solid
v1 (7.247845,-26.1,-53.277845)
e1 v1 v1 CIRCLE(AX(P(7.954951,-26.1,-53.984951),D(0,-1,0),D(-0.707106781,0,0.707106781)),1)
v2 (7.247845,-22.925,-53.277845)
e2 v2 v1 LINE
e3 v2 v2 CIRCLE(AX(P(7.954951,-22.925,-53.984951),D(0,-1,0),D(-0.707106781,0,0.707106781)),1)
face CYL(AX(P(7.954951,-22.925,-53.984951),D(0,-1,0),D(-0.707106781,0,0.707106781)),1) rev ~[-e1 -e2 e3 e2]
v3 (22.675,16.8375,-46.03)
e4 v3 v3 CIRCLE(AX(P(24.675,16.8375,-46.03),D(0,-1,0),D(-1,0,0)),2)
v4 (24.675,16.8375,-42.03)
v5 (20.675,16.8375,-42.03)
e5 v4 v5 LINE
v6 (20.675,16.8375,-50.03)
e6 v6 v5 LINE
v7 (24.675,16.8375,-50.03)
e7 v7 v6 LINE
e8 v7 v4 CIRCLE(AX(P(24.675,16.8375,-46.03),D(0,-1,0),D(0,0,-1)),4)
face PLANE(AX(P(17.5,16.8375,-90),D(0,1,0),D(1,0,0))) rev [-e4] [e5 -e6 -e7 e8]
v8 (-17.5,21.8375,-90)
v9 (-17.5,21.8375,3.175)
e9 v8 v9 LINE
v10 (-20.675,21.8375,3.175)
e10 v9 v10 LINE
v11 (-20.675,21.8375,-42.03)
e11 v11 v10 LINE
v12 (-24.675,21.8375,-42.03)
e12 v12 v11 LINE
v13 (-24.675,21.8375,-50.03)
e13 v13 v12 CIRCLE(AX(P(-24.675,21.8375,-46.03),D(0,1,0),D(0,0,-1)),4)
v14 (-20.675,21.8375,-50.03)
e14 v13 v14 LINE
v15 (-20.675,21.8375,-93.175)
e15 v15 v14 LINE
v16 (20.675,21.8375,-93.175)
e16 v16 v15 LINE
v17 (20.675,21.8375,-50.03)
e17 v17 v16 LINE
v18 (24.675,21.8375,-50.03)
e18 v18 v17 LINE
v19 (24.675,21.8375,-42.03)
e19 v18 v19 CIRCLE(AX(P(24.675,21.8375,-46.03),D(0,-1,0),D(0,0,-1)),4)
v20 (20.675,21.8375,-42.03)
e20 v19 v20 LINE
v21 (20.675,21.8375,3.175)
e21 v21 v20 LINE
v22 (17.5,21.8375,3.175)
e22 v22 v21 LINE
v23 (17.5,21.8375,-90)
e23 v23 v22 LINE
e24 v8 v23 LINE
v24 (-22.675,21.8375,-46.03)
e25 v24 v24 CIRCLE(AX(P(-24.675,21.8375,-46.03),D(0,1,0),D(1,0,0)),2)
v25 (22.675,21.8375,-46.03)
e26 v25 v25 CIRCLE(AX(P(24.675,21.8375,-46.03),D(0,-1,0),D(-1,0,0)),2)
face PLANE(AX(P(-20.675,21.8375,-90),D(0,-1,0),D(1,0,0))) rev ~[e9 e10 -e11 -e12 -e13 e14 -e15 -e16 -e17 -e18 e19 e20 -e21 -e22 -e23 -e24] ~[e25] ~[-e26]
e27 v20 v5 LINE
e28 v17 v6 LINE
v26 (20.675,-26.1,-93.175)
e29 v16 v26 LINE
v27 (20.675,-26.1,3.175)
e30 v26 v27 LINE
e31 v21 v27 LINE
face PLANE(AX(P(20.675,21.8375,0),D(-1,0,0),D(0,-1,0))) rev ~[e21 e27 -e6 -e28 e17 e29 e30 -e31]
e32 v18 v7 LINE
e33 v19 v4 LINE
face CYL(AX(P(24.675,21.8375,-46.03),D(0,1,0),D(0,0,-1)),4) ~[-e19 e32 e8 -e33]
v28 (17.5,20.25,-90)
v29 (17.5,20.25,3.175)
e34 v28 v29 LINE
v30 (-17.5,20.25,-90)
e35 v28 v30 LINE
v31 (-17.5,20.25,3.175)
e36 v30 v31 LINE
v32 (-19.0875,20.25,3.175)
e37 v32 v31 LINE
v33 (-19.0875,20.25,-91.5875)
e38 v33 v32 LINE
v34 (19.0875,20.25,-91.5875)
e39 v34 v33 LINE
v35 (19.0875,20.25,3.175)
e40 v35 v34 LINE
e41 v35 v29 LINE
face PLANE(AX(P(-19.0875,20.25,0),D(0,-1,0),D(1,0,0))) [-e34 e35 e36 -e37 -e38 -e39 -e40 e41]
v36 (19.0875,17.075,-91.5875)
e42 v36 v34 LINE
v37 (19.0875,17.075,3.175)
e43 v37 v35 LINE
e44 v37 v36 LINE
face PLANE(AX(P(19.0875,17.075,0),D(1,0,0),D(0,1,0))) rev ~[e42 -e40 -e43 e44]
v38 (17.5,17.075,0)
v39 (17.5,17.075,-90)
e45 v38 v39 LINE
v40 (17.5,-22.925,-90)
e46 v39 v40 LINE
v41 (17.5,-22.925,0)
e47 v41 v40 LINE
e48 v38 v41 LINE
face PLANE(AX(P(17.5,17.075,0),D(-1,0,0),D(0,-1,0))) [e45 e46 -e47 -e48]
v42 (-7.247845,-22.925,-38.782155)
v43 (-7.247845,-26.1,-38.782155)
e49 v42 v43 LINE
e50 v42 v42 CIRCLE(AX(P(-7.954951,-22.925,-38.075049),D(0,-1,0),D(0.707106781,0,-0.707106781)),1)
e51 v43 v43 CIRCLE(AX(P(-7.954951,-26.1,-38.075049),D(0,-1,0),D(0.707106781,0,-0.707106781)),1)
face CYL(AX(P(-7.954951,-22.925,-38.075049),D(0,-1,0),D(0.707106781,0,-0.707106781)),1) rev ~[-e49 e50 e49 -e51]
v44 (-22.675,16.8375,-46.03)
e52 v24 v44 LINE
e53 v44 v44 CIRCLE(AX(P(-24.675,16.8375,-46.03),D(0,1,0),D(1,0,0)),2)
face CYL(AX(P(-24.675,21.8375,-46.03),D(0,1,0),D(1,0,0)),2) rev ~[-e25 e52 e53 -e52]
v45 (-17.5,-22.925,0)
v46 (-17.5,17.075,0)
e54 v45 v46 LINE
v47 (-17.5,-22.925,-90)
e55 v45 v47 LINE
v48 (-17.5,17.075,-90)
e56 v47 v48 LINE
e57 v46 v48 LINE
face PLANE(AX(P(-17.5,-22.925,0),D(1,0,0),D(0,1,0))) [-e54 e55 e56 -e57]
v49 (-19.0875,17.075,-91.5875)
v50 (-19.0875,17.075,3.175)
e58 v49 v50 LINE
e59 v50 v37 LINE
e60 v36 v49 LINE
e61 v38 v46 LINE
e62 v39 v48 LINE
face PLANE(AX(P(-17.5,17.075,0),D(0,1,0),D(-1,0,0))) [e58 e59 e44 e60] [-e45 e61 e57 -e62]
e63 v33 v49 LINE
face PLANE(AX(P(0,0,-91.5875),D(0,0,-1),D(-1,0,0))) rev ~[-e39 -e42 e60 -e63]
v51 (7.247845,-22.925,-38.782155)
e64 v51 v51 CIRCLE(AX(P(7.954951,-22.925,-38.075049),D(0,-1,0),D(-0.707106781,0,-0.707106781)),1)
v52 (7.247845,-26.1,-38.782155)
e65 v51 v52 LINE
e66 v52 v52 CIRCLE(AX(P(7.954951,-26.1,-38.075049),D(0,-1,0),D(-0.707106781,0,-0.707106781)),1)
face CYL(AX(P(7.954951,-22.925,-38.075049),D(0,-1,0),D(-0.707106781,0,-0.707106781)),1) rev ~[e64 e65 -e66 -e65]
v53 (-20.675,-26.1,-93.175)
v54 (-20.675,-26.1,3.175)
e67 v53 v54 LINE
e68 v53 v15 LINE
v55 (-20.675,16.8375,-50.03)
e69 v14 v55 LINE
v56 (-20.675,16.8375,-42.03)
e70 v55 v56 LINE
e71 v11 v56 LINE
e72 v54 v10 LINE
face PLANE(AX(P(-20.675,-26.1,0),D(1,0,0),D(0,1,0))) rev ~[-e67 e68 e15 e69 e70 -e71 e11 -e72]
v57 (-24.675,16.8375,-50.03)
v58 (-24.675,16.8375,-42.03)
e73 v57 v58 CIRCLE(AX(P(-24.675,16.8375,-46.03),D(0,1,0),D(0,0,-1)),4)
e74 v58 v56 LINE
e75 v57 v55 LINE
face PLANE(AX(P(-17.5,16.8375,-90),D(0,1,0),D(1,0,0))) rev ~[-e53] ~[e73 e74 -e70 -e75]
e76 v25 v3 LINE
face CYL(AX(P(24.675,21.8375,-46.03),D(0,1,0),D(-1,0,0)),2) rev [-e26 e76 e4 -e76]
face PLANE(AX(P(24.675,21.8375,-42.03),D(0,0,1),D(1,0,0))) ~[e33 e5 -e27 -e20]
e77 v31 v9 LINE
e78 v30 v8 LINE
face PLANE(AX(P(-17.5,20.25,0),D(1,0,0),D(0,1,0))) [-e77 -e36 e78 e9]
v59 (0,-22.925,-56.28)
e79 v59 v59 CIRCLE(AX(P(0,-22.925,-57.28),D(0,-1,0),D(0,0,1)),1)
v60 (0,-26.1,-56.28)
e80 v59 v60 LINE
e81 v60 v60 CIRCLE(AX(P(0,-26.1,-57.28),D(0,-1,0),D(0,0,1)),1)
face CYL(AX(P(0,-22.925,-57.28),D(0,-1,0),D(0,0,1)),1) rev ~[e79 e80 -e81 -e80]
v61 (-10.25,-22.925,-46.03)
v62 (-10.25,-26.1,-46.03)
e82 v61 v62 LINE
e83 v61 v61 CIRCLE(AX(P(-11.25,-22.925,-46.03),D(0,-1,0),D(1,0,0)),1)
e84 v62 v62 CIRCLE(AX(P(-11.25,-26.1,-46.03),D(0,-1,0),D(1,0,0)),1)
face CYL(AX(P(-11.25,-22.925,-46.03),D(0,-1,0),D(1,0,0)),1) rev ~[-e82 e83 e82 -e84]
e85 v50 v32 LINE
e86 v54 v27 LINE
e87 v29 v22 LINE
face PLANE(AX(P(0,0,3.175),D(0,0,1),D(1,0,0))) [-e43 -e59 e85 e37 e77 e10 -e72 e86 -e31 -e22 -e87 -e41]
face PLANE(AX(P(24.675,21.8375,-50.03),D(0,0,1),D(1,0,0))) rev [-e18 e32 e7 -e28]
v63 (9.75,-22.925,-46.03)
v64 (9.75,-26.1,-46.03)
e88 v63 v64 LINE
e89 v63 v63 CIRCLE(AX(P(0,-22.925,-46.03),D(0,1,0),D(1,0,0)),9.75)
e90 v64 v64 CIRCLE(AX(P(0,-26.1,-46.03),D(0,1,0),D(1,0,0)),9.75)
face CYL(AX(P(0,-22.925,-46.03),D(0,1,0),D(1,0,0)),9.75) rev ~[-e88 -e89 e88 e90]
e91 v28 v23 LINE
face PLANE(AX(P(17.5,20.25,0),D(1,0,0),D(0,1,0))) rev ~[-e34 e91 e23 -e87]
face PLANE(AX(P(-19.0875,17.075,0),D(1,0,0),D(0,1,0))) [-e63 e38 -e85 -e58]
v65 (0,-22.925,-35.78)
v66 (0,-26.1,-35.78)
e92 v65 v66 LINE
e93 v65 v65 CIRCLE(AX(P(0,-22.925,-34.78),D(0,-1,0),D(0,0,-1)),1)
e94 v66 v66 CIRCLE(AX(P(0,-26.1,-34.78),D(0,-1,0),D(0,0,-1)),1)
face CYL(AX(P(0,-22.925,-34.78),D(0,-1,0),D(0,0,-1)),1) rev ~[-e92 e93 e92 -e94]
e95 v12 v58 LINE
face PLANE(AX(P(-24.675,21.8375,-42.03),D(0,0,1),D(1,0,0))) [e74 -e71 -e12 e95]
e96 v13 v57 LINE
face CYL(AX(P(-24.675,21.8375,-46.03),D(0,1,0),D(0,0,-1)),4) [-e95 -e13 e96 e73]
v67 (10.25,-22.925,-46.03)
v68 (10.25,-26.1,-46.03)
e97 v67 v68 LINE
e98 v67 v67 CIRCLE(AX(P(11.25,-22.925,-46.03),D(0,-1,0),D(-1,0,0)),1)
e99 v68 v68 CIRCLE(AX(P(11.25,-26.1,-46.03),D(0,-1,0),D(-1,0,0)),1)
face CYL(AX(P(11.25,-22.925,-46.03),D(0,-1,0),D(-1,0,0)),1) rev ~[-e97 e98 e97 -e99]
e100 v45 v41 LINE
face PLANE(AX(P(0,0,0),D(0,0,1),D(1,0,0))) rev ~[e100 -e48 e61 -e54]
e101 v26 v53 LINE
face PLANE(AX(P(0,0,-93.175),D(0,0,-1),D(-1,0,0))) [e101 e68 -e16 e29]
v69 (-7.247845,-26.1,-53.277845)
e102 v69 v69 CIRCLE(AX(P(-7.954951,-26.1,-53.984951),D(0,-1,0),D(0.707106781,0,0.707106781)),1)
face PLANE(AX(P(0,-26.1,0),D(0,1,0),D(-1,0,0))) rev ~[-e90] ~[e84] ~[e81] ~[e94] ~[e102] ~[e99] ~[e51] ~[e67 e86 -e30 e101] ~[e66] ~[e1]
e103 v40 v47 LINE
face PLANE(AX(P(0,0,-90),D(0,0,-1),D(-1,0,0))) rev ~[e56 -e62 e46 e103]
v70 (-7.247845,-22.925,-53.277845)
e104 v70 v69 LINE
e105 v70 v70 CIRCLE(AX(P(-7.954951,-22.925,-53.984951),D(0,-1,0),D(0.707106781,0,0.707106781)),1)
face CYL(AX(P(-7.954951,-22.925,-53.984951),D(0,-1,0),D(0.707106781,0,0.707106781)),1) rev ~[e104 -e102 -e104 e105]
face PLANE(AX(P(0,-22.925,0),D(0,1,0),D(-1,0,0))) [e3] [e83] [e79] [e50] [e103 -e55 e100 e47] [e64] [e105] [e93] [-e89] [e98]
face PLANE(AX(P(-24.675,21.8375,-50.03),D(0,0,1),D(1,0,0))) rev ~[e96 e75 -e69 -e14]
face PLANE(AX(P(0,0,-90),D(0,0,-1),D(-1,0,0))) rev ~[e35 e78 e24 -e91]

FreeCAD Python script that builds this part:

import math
import FreeCAD as App
import Part
import Sketcher
from FreeCAD import Vector
Q = App.Units.Quantity


def add_polygon(sketch, points):
    """Adds a closed chain of lines whose ends are joined by coincident constraints."""
    first, n = sketch.GeometryCount, len(points)
    for a, b in zip(points, points[1:] + points[:1]):
        sketch.addGeometry(Part.LineSegment(App.Vector(*a, 0), App.Vector(*b, 0)), False)
    for i in range(n):
        sketch.addConstraint(Sketcher.Constraint("Coincident", first + i, 2, first + (i + 1) % n, 1))

doc = App.newDocument("Part")
params = doc.addObject("Spreadsheet::Sheet", "Params")
for row, (alias, value) in enumerate([
    ("sketch1_width", "35 mm"),
    ("sketch1_height", "40 mm"),
    ("pad1_length", "90 mm"),
    ("pad2_length", "3.175 mm"),
    ("sketch3_width", "41.35 mm"),
    ("pad3_length", "3.175 mm"),
    ("pocket1_length", "1.5875 mm"),
    ("sketch5_diameter", "19.5 mm"),
    ("sketch6_diameter", "2 mm"),
    ("hole_diameter", "2 mm"),
    ("hole_depth", "8 mm"),
    ("sketch7_diameter", "4 mm"),
    ("sketch7_radius", "4 mm"),
    ("sketch7_width", "4 mm"),
    ("pad4_length", "5 mm"),
], start=1):
    params.set(f"A{row}", alias)
    params.set(f"B{row}", "=" + value)
    params.setAlias(f"B{row}", alias)

body = doc.addObject("PartDesign::Body", "Body")

# Sketch on XY plane
sketch1 = body.newObject("Sketcher::SketchObject", "Sketch")
sketch1.AttachmentSupport = (doc.getObject("XY_Plane"), [""])
sketch1.MapMode = "FlatFace"
add_polygon(sketch1, [(-17.5, -22.925), (-17.5, 17.075), (-19.0875, 17.075), (-19.0875, 20.25), (-17.5, 20.25), (-17.5, 21.8375), (-20.675, 21.8375), (-20.675, -26.1), (20.675, -26.1), (20.675, 21.8375), (17.5, 21.8375), (17.5, 20.25), (19.0875, 20.25), (19.0875, 17.075), (17.5, 17.075), (17.5, -22.925)])  # lines 0-15
sketch1.addConstraint([
    Sketcher.Constraint("Vertical", 0),
    Sketcher.Constraint("Horizontal", 1),
    Sketcher.Constraint("Vertical", 2),
    Sketcher.Constraint("Horizontal", 3),
    Sketcher.Constraint("Vertical", 4),
    Sketcher.Constraint("Horizontal", 5),
    Sketcher.Constraint("Vertical", 6),
    Sketcher.Constraint("Horizontal", 7),
    Sketcher.Constraint("Vertical", 8),
    Sketcher.Constraint("Horizontal", 9),
    Sketcher.Constraint("Vertical", 10),
    Sketcher.Constraint("Horizontal", 11),
    Sketcher.Constraint("Vertical", 12),
    Sketcher.Constraint("Horizontal", 13),
    Sketcher.Constraint("Vertical", 14),
    Sketcher.Constraint("Horizontal", 15),
    Sketcher.Constraint("Symmetric", 5, 2, 8, 2, -2),
    Sketcher.Constraint("Symmetric", 3, 2, 10, 2, -2),
    Sketcher.Constraint("Symmetric", 1, 2, 12, 2, -2),
    Sketcher.Constraint("Vertical", 0, 2, 3, 2),
    Sketcher.Constraint("Vertical", 10, 2, 13, 2),
    Sketcher.Constraint("Equal", 9, 2),
    Sketcher.Constraint("Equal", 13, 4),
    Sketcher.Constraint("DistanceX", 15, 2, 15, 1, Q("35 mm")),
    Sketcher.Constraint("DistanceY", 0, 1, 0, 2, Q("40 mm")),
    Sketcher.Constraint("DistanceX", 5, 2, 5, 1, Q("3.175 mm")),
    Sketcher.Constraint("DistanceX", 1, 2, 1, 1, Q("1.5875 mm")),
    Sketcher.Constraint("DistanceY", 7, 2, 14, 2, Q("3.175 mm")),
    Sketcher.Constraint("DistanceY", 6, 2, -1, 1, Q("26.1 mm")),
])
sketch1.setExpression("Constraints[39]", "Params.sketch1_width")
sketch1.setExpression("Constraints[40]", "Params.sketch1_height")
pad1 = body.newObject("PartDesign::Pad", "Pad")
pad1.Profile = sketch1
pad1.setExpression("Length", "Params.pad1_length")
pad1.Reversed = True

# Sketch on XY plane
sketch2 = body.newObject("Sketcher::SketchObject", "Sketch001")
sketch2.AttachmentSupport = (doc.getObject("XY_Plane"), [""])
sketch2.MapMode = "FlatFace"
add_polygon(sketch2, [(-19.0875, 17.075), (-19.0875, 20.25), (-17.5, 20.25), (-17.5, 21.8375), (-20.675, 21.8375), (-20.675, -26.1), (20.675, -26.1), (20.675, 21.8375), (17.5, 21.8375), (17.5, 20.25), (19.0875, 20.25), (19.0875, 17.075)])  # lines 0-11
sketch2.addConstraint([
    Sketcher.Constraint("Vertical", 0),
    Sketcher.Constraint("Horizontal", 1),
    Sketcher.Constraint("Vertical", 2),
    Sketcher.Constraint("Horizontal", 3),
    Sketcher.Constraint("Vertical", 4),
    Sketcher.Constraint("Horizontal", 5),
    Sketcher.Constraint("Vertical", 6),
    Sketcher.Constraint("Horizontal", 7),
    Sketcher.Constraint("Vertical", 8),
    Sketcher.Constraint("Horizontal", 9),
    Sketcher.Constraint("Vertical", 10),
    Sketcher.Constraint("Horizontal", 11),
    Sketcher.Constraint("Symmetric", 3, 2, 6, 2, -2),
    Sketcher.Constraint("Symmetric", 1, 2, 8, 2, -2),
    Sketcher.Constraint("Equal", 1, 9),
    Sketcher.Constraint("Equal", 7, 0),
    Sketcher.Constraint("Equal", 9, 2),
    Sketcher.Constraint("DistanceX", 2, 2, 7, 2, Q("35 mm")),
    Sketcher.Constraint("DistanceX", 3, 2, 3, 1, Q("3.175 mm")),
    Sketcher.Constraint("DistanceX", 1, 1, 1, 2, Q("1.5875 mm")),
    Sketcher.Constraint("DistanceY", 4, 2, -1, 1, Q("26.1 mm")),
    Sketcher.Constraint("DistanceY", -1, 1, 0, 2, Q("20.25 mm")),
])
pad2 = body.newObject("PartDesign::Pad", "Pad001")
pad2.Profile = sketch2
pad2.setExpression("Length", "Params.pad2_length")

# Sketch on XY plane
sketch3 = body.newObject("Sketcher::SketchObject", "Sketch002")
sketch3.AttachmentSupport = (doc.getObject("XY_Plane"), [""])
sketch3.MapMode = "FlatFace"
sketch3.AttachmentOffset = App.Placement(Vector(0, 0, -90), App.Rotation())
add_polygon(sketch3, [(-20.675, 21.8375), (20.675, 21.8375), (20.675, -26.1), (-20.675, -26.1)])  # lines 0-3
sketch3.addConstraint([
    Sketcher.Constraint("Horizontal", 0),
    Sketcher.Constraint("Vertical", 1),
    Sketcher.Constraint("Horizontal", 2),
    Sketcher.Constraint("Vertical", 3),
    Sketcher.Constraint("DistanceX", 0, 1, 0, 2, Q("41.35 mm")),
    Sketcher.Constraint("DistanceY", 1, 2, -1, 1, Q("26.1 mm")),
    Sketcher.Constraint("DistanceY", 1, 2, 1, 1, Q("47.9375 mm")),
    Sketcher.Constraint("DistanceX", -1, 1, 0, 2, Q("20.675 mm")),
])
sketch3.setExpression("Constraints[8]", "Params.sketch3_width")
pad3 = body.newObject("PartDesign::Pad", "Pad002")
pad3.Profile = sketch3
pad3.setExpression("Length", "Params.pad3_length")
pad3.Reversed = True

# Sketch on XY plane
sketch4 = body.newObject("Sketcher::SketchObject", "Sketch003")
sketch4.AttachmentSupport = (doc.getObject("XY_Plane"), [""])
sketch4.MapMode = "FlatFace"
sketch4.AttachmentOffset = App.Placement(Vector(0, 0, -90), App.Rotation())
add_polygon(sketch4, [(19.0875, 17.075), (-19.0875, 17.075), (-19.0875, 20.25), (19.0875, 20.25)])  # lines 0-3
sketch4.addConstraint([
    Sketcher.Constraint("Horizontal", 0),
    Sketcher.Constraint("Vertical", 1),
    Sketcher.Constraint("Horizontal", 2),
    Sketcher.Constraint("Vertical", 3),
    Sketcher.Constraint("DistanceX", 0, 2, 0, 1, Q("38.175 mm")),
    Sketcher.Constraint("DistanceY", 1, 1, 1, 2, Q("3.175 mm")),
    Sketcher.Constraint("DistanceY", -1, 1, 1, 2, Q("20.25 mm")),
    Sketcher.Constraint("DistanceX", 0, 2, -1, 1, Q("19.0875 mm")),
])
pocket1 = body.newObject("PartDesign::Pocket", "Pocket")
pocket1.Profile = sketch4
pocket1.setExpression("Length", "Params.pocket1_length")

# Sketch on XZ plane
sketch5 = body.newObject("Sketcher::SketchObject", "Sketch004")
sketch5.AttachmentSupport = (doc.getObject("XZ_Plane"), [""])
sketch5.MapMode = "FlatFace"
sketch5.AttachmentOffset = App.Placement(Vector(0, 0, 22.925), App.Rotation())
sketch5.addGeometry(Part.Circle(Vector(0, -46.03, 0), Vector(0, 0, 1), 9.75), False)
sketch5.addConstraint([
    Sketcher.Constraint("PointOnObject", 0, 3, -2),
    Sketcher.Constraint("Diameter", 0, Q("19.5 mm")),
    Sketcher.Constraint("DistanceY", 0, 3, -1, 1, Q("46.03 mm")),
])
sketch5.setExpression("Constraints[1]", "Params.sketch5_diameter")
pocket2 = body.newObject("PartDesign::Pocket", "Pocket001")
pocket2.Profile = sketch5
pocket2.Type = "UpToFirst"
pocket2.Reversed = True

# Sketch on XZ plane
sketch6 = body.newObject("Sketcher::SketchObject", "Sketch005")
sketch6.AttachmentSupport = (doc.getObject("XZ_Plane"), [""])
sketch6.MapMode = "FlatFace"
sketch6.AttachmentOffset = App.Placement(Vector(0, 0, 22.925), App.Rotation())
sketch6.addGeometry(Part.Circle(Vector(0, -57.28, 0), Vector(0, 0, 1), 1), False)
sketch6.addConstraint([
    Sketcher.Constraint("PointOnObject", 0, 3, -2),
    Sketcher.Constraint("Diameter", 0, Q("2 mm")),
    Sketcher.Constraint("DistanceY", 0, 3, -1, 1, Q("57.28 mm")),
])
sketch6.setExpression("Constraints[1]", "Params.sketch6_diameter")
doc.recompute()
hole = body.newObject("PartDesign::Hole", "Hole")
hole.Profile = sketch6
hole.ThreadType = "None"
hole.setExpression("Diameter", "Params.hole_diameter")
hole.DepthType = "Dimension"
hole.setExpression("Depth", "Params.hole_depth")
hole.DrillPoint = "Angled"
hole.DrillPointAngle = 118
hole.Reversed = True
doc.recompute()

datumline = body.newObject("PartDesign::Line", "DatumLine")
datumline.Placement = App.Placement(Vector(0, 0, -46.03), App.Rotation(Vector(0, 0, 1), Vector(0, 1, 0)))
polarpattern = body.newObject("PartDesign::PolarPattern", "PolarPattern")
polarpattern.Originals = [hole]
polarpattern.Axis = (datumline, [""])
polarpattern.Angle = 360
polarpattern.Occurrences = 8
body.Tip = polarpattern

# Sketch on XZ plane
sketch7 = body.newObject("Sketcher::SketchObject", "Sketch006")
sketch7.AttachmentSupport = (doc.getObject("XZ_Plane"), [""])
sketch7.MapMode = "FlatFace"
sketch7.AttachmentOffset = App.Placement(Vector(0, 0, -21.8375), App.Rotation())
sketch7.addGeometry([
    Part.LineSegment(Vector(-24.675, -42.03, 0), Vector(-20.675, -42.03, 0)),  # 0
    Part.LineSegment(Vector(-20.675, -42.03, 0), Vector(-20.675, -50.03, 0)),  # 1
    Part.LineSegment(Vector(-20.675, -50.03, 0), Vector(-24.675, -50.03, 0)),  # 2
    Part.ArcOfCircle(Part.Circle(Vector(-24.675, -46.03, 0), Vector(0, 0, 1), 4), math.radians(90), math.radians(270)),  # 3
    Part.Circle(Vector(-24.675, -46.03, 0), Vector(0, 0, 1), 2),  # 4
], False)
sketch7.addConstraint([
    Sketcher.Constraint("Coincident", 0, 2, 1, 1),
    Sketcher.Constraint("Coincident", 1, 2, 2, 1),
    Sketcher.Constraint("Tangent", 2, 2, 3, 2),
    Sketcher.Constraint("Tangent", 3, 1, 0, 1),
    Sketcher.Constraint("Horizontal", 0),
    Sketcher.Constraint("Vertical", 1),
    Sketcher.Constraint("Horizontal", 2),
    Sketcher.Constraint("Coincident", 4, 3, 3, 3),
    Sketcher.Constraint("Diameter", 4, Q("4 mm")),
    Sketcher.Constraint("Radius", 3, Q("4 mm")),
    Sketcher.Constraint("DistanceX", 0, 1, 0, 2, Q("4 mm")),
    Sketcher.Constraint("DistanceY", 3, 3, -1, 1, Q("46.03 mm")),
    Sketcher.Constraint("DistanceX", 3, 3, -1, 1, Q("24.675 mm")),
])
sketch7.setExpression("Constraints[8]", "Params.sketch7_diameter")
sketch7.setExpression("Constraints[9]", "Params.sketch7_radius")
sketch7.setExpression("Constraints[10]", "Params.sketch7_width")
pad4 = body.newObject("PartDesign::Pad", "Pad003")
pad4.Profile = sketch7
pad4.setExpression("Length", "Params.pad4_length")
doc.recompute()

mirrored = body.newObject("PartDesign::Mirrored", "Mirrored")
mirrored.Originals = [pad4]
mirrored.MirrorPlane = (doc.getObject("YZ_Plane"), [""])
body.Tip = mirrored

doc.recompute()
